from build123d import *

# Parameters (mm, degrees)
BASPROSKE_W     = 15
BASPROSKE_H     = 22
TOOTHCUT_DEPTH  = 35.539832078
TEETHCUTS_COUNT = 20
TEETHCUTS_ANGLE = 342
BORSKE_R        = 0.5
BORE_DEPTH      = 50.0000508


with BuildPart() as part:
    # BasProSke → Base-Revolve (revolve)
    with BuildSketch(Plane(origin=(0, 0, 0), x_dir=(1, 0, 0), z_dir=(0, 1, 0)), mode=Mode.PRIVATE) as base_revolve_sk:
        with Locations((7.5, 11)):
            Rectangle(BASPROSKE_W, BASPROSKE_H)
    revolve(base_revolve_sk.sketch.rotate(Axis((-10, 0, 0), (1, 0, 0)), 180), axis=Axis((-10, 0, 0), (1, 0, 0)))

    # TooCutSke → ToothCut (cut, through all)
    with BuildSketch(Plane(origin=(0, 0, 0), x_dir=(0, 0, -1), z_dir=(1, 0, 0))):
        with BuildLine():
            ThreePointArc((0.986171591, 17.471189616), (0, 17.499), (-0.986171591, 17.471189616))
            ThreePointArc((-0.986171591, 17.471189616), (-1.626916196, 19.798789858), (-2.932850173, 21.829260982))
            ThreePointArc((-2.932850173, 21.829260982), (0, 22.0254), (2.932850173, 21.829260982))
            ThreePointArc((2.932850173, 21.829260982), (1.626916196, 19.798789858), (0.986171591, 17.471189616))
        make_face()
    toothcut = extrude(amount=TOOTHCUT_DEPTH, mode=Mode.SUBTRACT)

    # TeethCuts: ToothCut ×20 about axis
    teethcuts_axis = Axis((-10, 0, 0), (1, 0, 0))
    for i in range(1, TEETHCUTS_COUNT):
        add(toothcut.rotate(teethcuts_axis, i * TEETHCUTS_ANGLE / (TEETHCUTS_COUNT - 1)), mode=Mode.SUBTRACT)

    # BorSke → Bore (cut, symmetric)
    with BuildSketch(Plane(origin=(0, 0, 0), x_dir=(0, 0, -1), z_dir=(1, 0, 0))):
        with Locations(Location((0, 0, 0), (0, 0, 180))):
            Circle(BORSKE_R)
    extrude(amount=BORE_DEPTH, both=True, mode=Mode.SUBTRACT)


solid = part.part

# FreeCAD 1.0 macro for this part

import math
import FreeCAD as App
import Part
import Sketcher

V = App.Vector
Q = App.Units.Quantity

doc = App.newDocument("Part")
body = doc.addObject("PartDesign::Body", "Body")

sketch1 = doc.addObject("Sketcher::SketchObject", "Sketch")
body.addObject(sketch1)
sketch1.AttachmentSupport = (doc.XZ_Plane, [""])
sketch1.MapMode = "FlatFace"
sketch1.addGeometry(Part.LineSegment(V(0, -22, 0), V(0, 0, 0)), False)
sketch1.addGeometry(Part.LineSegment(V(0, 0, 0), V(15, 0, 0)), False)
sketch1.addGeometry(Part.LineSegment(V(15, 0, 0), V(15, -22, 0)), False)
sketch1.addGeometry(Part.LineSegment(V(15, -22, 0), V(0, -22, 0)), False)
sketch1.addConstraint(Sketcher.Constraint("Coincident", 0, 2, 1, 1))
sketch1.addConstraint(Sketcher.Constraint("Coincident", 1, 2, 2, 1))
sketch1.addConstraint(Sketcher.Constraint("Coincident", 2, 2, 3, 1))
sketch1.addConstraint(Sketcher.Constraint("Coincident", 3, 2, 0, 1))
sketch1.addConstraint(Sketcher.Constraint("Vertical", 0))
sketch1.addConstraint(Sketcher.Constraint("Horizontal", 1))
sketch1.addConstraint(Sketcher.Constraint("Vertical", 2))
sketch1.addConstraint(Sketcher.Constraint("Horizontal", 3))
sketch1.addConstraint(Sketcher.Constraint("Coincident", 0, 2, -1, 1))
sketch1.addConstraint(Sketcher.Constraint("DistanceX", 1, 1, 1, 2, Q("15 mm")))
sketch1.addConstraint(Sketcher.Constraint("DistanceY", 0, 1, 0, 2, Q("22 mm")))
revolution = doc.addObject("PartDesign::Revolution", "Revolution")
body.addObject(revolution)
revolution.Profile = sketch1
revolution.ReferenceAxis = (sketch1, ["H_Axis"])
revolution.Angle = 360

sketch2 = doc.addObject("Sketcher::SketchObject", "Sketch001")
body.addObject(sketch2)
sketch2.AttachmentSupport = (doc.YZ_Plane, [""])
sketch2.MapMode = "FlatFace"
sketch2.addGeometry(Part.ArcOfCircle(Part.Circle(V(0, 0, 0), V(0, 0, 1), 17.5), math.radians(-3.23), math.radians(3.23)), False)
sketch2.addGeometry(Part.ArcOfCircle(Part.Circle(V(16.5, -8.9, 0), V(0, 0, 1), 8), math.radians(49), math.radians(83)), False)
sketch2.addGeometry(Part.ArcOfCircle(Part.Circle(V(0, 0, 0), V(0, 0, 1), 22), math.radians(-7.65), math.radians(7.65)), False)
sketch2.addGeometry(Part.ArcOfCircle(Part.Circle(V(16.5, 8.9, 0), V(0, 0, 1), 8), math.radians(-83), math.radians(-49)), False)
sketch2.addConstraint(Sketcher.Constraint("Coincident", 0, 1, 1, 2))
sketch2.addConstraint(Sketcher.Constraint("Coincident", 1, 1, 2, 1))
sketch2.addConstraint(Sketcher.Constraint("Coincident", 2, 2, 3, 2))
sketch2.addConstraint(Sketcher.Constraint("Coincident", 3, 1, 0, 2))
sketch2.addConstraint(Sketcher.Constraint("Coincident", 0, 3, -1, 1))
sketch2.addConstraint(Sketcher.Constraint("Coincident", 2, 3, -1, 1))
sketch2.addConstraint(Sketcher.Constraint("Equal", 1, 3))
sketch2.addConstraint(Sketcher.Constraint("Symmetric", 1, 3, 3, 3, -1))
sketch2.addConstraint(Sketcher.Constraint("Radius", 1, Q("8 mm")))
sketch2.addConstraint(Sketcher.Constraint("Radius", 0, Q("17.499 mm")))
sketch2.addConstraint(Sketcher.Constraint("Radius", 2, Q("22.0254 mm")))
sketch2.addConstraint(Sketcher.Constraint("DistanceY", 1, 1, 2, 2, Q("5.8657 mm")))
sketch2.addConstraint(Sketcher.Constraint("DistanceX", -1, 1, 1, 3, Q("16.536031 mm")))
pocket1 = doc.addObject("PartDesign::Pocket", "Pocket")
body.addObject(pocket1)
pocket1.Profile = sketch2
pocket1.Type = "ThroughAll"
pocket1.Reversed = True
doc.recompute()

polarpattern = doc.addObject("PartDesign::PolarPattern", "PolarPattern")
body.addObject(polarpattern)
polarpattern.Originals = [pocket1]
polarpattern.Axis = (doc.X_Axis, [""])
polarpattern.Angle = 360
polarpattern.Occurrences = 20
body.Tip = polarpattern

sketch3 = doc.addObject("Sketcher::SketchObject", "Sketch002")
body.addObject(sketch3)
sketch3.AttachmentSupport = (doc.YZ_Plane, [""])
sketch3.MapMode = "FlatFace"
sketch3.addGeometry(Part.Circle(V(0, 0, 0), V(0, 0, 1), 0.5), False)
sketch3.addConstraint(Sketcher.Constraint("Coincident", 0, 3, -1, 1))
sketch3.addConstraint(Sketcher.Constraint("Diameter", 0, Q("1 mm")))
pocket2 = doc.addObject("PartDesign::Pocket", "Pocket001")
body.addObject(pocket2)
pocket2.Profile = sketch3
pocket2.Length = 100.000102
pocket2.Midplane = True

doc.recompute()
